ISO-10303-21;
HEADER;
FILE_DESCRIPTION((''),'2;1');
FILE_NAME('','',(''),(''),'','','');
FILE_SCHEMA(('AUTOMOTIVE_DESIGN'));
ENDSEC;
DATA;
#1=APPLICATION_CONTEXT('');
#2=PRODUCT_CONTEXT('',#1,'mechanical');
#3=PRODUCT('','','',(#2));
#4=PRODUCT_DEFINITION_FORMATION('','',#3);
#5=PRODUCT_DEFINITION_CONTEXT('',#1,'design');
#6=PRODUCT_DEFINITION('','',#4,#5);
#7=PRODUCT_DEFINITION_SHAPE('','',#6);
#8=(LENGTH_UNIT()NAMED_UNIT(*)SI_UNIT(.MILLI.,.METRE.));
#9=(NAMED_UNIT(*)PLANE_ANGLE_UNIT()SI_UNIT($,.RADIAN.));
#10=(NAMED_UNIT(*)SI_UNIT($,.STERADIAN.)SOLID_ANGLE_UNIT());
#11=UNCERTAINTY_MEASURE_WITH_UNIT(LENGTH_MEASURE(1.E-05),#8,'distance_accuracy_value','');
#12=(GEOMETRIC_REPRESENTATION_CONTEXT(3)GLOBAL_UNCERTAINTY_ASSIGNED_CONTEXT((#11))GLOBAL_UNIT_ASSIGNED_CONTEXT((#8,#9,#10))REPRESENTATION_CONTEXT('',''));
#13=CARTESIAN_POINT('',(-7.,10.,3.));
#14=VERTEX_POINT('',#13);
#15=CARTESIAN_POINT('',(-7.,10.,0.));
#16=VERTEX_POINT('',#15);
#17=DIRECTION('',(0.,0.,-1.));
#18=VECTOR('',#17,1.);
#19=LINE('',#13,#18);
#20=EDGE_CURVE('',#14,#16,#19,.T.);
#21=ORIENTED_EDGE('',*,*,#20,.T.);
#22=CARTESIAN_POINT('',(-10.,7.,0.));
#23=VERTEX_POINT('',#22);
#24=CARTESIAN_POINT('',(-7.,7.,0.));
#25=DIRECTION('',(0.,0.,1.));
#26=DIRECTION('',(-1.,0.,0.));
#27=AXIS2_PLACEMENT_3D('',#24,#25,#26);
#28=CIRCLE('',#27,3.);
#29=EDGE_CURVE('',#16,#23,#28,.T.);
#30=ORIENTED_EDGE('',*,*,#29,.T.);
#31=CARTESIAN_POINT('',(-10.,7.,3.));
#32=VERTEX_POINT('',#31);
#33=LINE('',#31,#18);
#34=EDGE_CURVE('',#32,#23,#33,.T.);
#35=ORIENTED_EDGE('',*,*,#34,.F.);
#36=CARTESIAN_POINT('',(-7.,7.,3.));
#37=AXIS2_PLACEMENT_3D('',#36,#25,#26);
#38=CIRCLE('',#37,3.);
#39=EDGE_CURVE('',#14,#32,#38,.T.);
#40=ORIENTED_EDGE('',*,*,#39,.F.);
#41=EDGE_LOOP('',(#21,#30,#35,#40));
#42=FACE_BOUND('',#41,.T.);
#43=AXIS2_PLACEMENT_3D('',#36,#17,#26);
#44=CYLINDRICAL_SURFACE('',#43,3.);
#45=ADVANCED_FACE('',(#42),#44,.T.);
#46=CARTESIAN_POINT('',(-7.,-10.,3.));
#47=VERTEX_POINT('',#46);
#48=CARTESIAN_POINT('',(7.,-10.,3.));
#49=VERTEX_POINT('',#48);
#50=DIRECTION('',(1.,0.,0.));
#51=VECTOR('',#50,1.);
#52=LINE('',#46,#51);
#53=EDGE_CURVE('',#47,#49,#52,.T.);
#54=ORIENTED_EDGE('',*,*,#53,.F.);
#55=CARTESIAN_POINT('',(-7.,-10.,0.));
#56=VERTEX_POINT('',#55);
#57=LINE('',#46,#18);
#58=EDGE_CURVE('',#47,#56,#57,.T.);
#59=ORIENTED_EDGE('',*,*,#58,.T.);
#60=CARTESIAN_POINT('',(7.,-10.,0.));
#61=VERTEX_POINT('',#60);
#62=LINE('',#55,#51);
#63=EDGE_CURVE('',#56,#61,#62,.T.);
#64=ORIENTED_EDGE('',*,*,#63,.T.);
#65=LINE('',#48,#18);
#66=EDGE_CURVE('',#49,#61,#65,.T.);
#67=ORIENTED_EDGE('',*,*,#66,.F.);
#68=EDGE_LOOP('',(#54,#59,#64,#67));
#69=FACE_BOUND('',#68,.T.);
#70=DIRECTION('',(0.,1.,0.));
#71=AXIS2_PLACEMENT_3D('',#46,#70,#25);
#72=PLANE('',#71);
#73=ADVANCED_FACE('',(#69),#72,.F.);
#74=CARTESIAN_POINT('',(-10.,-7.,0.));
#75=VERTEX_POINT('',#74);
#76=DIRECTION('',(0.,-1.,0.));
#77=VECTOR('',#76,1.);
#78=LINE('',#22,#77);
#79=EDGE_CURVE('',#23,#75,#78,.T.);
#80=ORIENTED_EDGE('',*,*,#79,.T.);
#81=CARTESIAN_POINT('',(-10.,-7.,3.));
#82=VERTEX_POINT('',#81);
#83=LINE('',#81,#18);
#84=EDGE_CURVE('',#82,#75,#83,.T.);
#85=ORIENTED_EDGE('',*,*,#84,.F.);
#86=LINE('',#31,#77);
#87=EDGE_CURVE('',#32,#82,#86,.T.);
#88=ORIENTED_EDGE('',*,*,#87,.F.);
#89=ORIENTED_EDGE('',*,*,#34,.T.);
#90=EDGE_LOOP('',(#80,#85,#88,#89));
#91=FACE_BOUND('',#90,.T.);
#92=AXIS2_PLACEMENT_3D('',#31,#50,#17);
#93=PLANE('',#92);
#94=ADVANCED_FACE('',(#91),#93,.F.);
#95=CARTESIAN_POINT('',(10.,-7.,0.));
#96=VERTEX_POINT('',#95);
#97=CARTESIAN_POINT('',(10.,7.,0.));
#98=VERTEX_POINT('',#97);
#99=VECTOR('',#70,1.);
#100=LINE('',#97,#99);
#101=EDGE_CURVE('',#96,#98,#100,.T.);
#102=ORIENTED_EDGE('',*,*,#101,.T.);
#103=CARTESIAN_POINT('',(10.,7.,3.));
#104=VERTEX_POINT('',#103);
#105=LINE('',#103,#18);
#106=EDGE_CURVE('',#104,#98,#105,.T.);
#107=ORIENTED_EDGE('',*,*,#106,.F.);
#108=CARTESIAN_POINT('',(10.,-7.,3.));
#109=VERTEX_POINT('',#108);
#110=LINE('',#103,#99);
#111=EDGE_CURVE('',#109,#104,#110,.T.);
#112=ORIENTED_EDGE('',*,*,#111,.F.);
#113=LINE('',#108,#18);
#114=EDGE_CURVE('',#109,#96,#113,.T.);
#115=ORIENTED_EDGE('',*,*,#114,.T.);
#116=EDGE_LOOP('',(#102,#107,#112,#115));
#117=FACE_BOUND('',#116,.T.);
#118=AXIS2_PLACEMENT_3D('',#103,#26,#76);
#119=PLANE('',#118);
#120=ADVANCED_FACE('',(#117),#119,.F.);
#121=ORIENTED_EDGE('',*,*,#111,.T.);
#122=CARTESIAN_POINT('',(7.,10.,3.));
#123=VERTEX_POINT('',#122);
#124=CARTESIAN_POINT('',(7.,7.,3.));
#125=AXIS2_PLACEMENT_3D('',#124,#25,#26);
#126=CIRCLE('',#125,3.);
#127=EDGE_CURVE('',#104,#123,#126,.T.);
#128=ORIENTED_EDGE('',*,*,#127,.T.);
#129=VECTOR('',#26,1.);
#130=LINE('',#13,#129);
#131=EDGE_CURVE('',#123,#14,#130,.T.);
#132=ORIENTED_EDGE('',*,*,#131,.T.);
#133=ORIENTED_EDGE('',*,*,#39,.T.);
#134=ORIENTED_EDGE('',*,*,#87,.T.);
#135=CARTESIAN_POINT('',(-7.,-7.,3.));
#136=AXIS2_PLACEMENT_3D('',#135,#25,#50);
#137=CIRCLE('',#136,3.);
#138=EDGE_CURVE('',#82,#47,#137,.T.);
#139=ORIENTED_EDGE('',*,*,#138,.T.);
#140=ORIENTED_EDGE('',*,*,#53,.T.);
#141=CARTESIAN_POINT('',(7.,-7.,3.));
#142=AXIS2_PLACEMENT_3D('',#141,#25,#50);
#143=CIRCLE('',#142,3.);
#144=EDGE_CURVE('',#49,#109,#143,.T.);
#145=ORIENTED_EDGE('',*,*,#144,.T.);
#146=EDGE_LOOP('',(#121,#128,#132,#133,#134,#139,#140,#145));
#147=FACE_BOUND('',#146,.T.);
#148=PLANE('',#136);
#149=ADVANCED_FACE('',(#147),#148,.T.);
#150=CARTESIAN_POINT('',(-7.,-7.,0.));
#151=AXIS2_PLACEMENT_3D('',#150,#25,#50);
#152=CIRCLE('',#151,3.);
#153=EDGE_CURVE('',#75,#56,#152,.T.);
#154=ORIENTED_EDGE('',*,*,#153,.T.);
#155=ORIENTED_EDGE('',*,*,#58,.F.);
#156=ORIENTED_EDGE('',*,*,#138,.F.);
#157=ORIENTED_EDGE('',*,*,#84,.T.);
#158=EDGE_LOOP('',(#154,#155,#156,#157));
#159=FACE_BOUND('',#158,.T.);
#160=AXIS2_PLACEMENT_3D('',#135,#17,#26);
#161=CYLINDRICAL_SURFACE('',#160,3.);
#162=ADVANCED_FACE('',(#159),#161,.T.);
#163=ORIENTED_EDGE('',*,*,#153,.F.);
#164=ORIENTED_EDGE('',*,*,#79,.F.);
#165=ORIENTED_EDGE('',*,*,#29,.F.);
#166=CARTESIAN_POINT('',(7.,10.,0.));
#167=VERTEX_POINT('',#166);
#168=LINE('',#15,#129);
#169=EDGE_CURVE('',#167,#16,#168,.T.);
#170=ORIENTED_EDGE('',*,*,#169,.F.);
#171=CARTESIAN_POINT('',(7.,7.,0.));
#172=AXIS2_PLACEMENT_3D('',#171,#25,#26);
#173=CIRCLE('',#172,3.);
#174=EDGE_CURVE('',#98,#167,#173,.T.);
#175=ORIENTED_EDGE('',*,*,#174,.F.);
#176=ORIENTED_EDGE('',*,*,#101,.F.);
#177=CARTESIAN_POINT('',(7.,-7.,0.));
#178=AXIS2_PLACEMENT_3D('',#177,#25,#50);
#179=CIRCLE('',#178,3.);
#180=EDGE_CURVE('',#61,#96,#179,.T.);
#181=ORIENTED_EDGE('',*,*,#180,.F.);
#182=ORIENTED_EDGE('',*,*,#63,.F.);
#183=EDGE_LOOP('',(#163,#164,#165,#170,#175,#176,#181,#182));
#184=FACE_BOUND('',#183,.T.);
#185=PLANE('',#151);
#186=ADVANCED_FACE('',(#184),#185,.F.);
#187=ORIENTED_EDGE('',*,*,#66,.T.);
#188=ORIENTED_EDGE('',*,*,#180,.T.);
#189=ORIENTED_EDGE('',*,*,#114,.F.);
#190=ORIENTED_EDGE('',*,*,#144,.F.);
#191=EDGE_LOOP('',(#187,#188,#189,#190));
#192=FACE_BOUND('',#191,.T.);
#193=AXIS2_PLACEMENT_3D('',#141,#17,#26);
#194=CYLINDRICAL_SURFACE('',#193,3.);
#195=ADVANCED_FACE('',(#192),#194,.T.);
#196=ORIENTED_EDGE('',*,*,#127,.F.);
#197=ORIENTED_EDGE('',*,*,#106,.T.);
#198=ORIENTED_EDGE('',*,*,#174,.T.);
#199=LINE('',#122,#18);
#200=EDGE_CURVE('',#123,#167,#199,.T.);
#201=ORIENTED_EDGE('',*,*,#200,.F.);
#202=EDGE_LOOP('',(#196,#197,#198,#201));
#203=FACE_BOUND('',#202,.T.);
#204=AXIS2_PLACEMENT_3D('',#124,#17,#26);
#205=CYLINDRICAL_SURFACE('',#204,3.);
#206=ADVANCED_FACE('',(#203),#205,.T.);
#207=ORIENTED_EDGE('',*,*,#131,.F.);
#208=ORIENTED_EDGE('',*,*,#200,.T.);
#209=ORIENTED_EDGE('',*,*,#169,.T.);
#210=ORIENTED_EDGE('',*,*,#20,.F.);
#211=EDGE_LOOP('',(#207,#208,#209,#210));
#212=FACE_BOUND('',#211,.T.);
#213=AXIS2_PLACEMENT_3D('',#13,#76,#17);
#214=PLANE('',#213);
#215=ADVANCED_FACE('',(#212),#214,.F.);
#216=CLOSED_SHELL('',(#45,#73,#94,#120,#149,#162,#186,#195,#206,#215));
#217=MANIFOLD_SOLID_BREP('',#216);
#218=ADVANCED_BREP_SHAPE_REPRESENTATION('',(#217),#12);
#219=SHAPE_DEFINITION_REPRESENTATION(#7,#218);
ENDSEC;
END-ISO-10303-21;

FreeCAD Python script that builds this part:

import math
import FreeCAD as App
import Part
import Sketcher
from FreeCAD import Vector
Q = App.Units.Quantity

doc = App.newDocument("Part")
body = doc.addObject("PartDesign::Body", "Body")

# Sketch on XY plane
sketch1 = body.newObject("Sketcher::SketchObject", "Sketch")
sketch1.AttachmentSupport = (doc.getObject("XY_Plane"), [""])
sketch1.MapMode = "FlatFace"
sketch1.addGeometry(Part.LineSegment(Vector(7, 10, 0), Vector(-7, 10, 0)), False)
sketch1.addGeometry(Part.ArcOfCircle(Part.Circle(Vector(-7, 7, 0), Vector(0, 0, 1), 3), math.radians(90), math.radians(180)), False)
sketch1.addGeometry(Part.LineSegment(Vector(-10, 7, 0), Vector(-10, -7, 0)), False)
sketch1.addGeometry(Part.ArcOfCircle(Part.Circle(Vector(-7, -7, 0), Vector(0, 0, 1), 3), math.radians(180), math.radians(270)), False)
sketch1.addGeometry(Part.LineSegment(Vector(-7, -10, 0), Vector(7, -10, 0)), False)
sketch1.addGeometry(Part.ArcOfCircle(Part.Circle(Vector(7, -7, 0), Vector(0, 0, 1), 3), math.radians(-90), math.radians(0)), False)
sketch1.addGeometry(Part.LineSegment(Vector(10, -7, 0), Vector(10, 7, 0)), False)
sketch1.addGeometry(Part.ArcOfCircle(Part.Circle(Vector(7, 7, 0), Vector(0, 0, 1), 3), math.radians(0), math.radians(90)), False)
sketch1.addConstraint(Sketcher.Constraint("Tangent", 0, 2, 1, 1))
sketch1.addConstraint(Sketcher.Constraint("Tangent", 1, 2, 2, 1))
sketch1.addConstraint(Sketcher.Constraint("Tangent", 2, 2, 3, 1))
sketch1.addConstraint(Sketcher.Constraint("Tangent", 3, 2, 4, 1))
sketch1.addConstraint(Sketcher.Constraint("Tangent", 4, 2, 5, 1))
sketch1.addConstraint(Sketcher.Constraint("Tangent", 5, 2, 6, 1))
sketch1.addConstraint(Sketcher.Constraint("Tangent", 6, 2, 7, 1))
sketch1.addConstraint(Sketcher.Constraint("Tangent", 7, 2, 0, 1))
sketch1.addConstraint(Sketcher.Constraint("Horizontal", 0))
sketch1.addConstraint(Sketcher.Constraint("Vertical", 2))
sketch1.addConstraint(Sketcher.Constraint("Horizontal", 4))
sketch1.addConstraint(Sketcher.Constraint("Vertical", 6))
sketch1.addConstraint(Sketcher.Constraint("Equal", 1, 3))
sketch1.addConstraint(Sketcher.Constraint("Equal", 3, 5))
sketch1.addConstraint(Sketcher.Constraint("Equal", 5, 7))
sketch1.addConstraint(Sketcher.Constraint("Symmetric", 1, 3, 5, 3, -1, 1))
sketch1.addConstraint(Sketcher.Constraint("Equal", 4, 2))
sketch1.addConstraint(Sketcher.Constraint("Radius", 1, Q("3 mm")))
sketch1.addConstraint(Sketcher.Constraint("DistanceX", 0, 2, 0, 1, Q("14 mm")))
pad1 = body.newObject("PartDesign::Pad", "Pad")
pad1.Profile = sketch1
pad1.Length = 3

doc.recompute()
